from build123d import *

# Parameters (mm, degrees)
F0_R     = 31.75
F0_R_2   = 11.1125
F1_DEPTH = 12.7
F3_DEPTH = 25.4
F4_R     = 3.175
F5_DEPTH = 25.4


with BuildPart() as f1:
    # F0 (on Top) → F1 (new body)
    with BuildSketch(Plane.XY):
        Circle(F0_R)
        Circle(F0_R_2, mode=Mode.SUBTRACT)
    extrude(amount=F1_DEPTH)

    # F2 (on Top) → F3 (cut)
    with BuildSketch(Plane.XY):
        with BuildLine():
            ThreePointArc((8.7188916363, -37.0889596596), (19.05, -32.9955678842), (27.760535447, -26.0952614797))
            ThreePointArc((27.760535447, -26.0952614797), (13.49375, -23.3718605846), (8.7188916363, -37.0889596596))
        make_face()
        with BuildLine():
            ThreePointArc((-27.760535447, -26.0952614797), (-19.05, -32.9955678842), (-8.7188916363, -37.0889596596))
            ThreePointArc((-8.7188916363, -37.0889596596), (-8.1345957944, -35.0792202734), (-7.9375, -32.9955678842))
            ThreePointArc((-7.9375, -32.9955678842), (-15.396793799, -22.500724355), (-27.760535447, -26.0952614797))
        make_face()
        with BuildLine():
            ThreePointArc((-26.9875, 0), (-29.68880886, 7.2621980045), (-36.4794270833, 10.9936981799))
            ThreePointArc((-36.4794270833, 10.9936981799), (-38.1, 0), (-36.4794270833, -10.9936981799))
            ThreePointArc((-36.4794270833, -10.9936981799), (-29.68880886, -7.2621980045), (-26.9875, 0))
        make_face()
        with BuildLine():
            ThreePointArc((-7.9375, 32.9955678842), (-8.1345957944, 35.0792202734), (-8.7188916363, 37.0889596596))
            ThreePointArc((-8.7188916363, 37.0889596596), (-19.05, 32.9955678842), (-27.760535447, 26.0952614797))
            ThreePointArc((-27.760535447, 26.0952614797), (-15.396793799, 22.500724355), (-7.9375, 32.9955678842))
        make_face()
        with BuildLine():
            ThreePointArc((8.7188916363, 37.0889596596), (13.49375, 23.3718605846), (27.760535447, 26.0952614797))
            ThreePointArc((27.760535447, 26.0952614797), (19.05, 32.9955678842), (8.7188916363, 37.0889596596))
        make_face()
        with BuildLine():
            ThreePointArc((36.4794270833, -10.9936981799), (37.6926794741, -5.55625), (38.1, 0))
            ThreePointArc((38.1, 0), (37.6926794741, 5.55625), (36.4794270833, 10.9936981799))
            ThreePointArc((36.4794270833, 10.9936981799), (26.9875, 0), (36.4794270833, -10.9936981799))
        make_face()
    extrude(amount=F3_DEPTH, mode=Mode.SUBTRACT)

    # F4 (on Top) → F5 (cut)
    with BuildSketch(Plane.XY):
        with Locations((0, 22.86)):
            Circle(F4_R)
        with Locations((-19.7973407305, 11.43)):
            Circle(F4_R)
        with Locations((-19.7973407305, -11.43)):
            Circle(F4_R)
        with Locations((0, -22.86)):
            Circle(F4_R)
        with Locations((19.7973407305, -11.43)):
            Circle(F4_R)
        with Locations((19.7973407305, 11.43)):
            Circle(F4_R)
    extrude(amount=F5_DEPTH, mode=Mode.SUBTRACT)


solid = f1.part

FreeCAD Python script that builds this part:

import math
import FreeCAD as App
import Part
import Sketcher
from FreeCAD import Vector
Q = App.Units.Quantity

doc = App.newDocument("Part")
body = doc.addObject("PartDesign::Body", "Body")

sketch1 = body.newObject("Sketcher::SketchObject", "Sketch")
sketch1.AttachmentSupport = (doc.getObject("XY_Plane"), [""])
sketch1.MapMode = "FlatFace"
sketch1.addGeometry([
    Part.Circle(Vector(0, 0, 0), Vector(0, 0, 1), 32),
    Part.Circle(Vector(0, 0, 0), Vector(0, 0, 1), 11),
], False)
sketch1.addConstraint([
    Sketcher.Constraint("Coincident", 0, 3, -1, 1),
    Sketcher.Constraint("Coincident", 1, 3, -1, 1),
    Sketcher.Constraint("Diameter", 0, Q("2.5 in")),
    Sketcher.Constraint("Diameter", 1, Q("0.875 in")),
])
pad1 = body.newObject("PartDesign::Pad", "Pad")
pad1.Profile = sketch1
pad1.Length = Q("0.5 in")

sketch2 = body.newObject("Sketcher::SketchObject", "Sketch001")
sketch2.AttachmentSupport = (doc.getObject("XY_Plane"), [""])
sketch2.MapMode = "FlatFace"
sketch2.addGeometry([
    Part.ArcOfCircle(Part.Circle(Vector(0, 0, 0), Vector(0, 0, 1), 38.1), math.radians(-77), math.radians(-43)),
    Part.ArcOfCircle(Part.Circle(Vector(19.1, -33, 0), Vector(0, 0, 1), 11.1), math.radians(38), math.radians(202)),
    Part.ArcOfCircle(Part.Circle(Vector(0, 0, 0), Vector(0, 0, 1), 38.1), math.radians(-137), math.radians(-103)),
    Part.ArcOfCircle(Part.Circle(Vector(-19, -33, 0), Vector(0, 0, 1), 11.1), math.radians(-22), math.radians(0)),
    Part.ArcOfCircle(Part.Circle(Vector(-19.1, -33, 0), Vector(0, 0, 1), 11.1), math.radians(0), math.radians(142)),
    Part.ArcOfCircle(Part.Circle(Vector(-38.1, 0, 0), Vector(0, 0, 1), 11.1), math.radians(0), math.radians(82)),
    Part.ArcOfCircle(Part.Circle(Vector(0, 0, 0), Vector(0, 0, 1), 38.1), math.radians(163), math.radians(197)),
    Part.ArcOfCircle(Part.Circle(Vector(-38.1, 0, 0), Vector(0, 0, 1), 11.1), math.radians(-82), math.radians(0)),
    Part.ArcOfCircle(Part.Circle(Vector(-19, 33, 0), Vector(0, 0, 1), 11.1), math.radians(0), math.radians(22)),
    Part.ArcOfCircle(Part.Circle(Vector(0, 0, 0), Vector(0, 0, 1), 38.1), math.radians(103), math.radians(137)),
    Part.ArcOfCircle(Part.Circle(Vector(-19.1, 33, 0), Vector(0, 0, 1), 11.1), math.radians(-142), math.radians(0)),
    Part.ArcOfCircle(Part.Circle(Vector(19.1, 33, 0), Vector(0, 0, 1), 11.1), math.radians(158), math.radians(322)),
    Part.ArcOfCircle(Part.Circle(Vector(0, 0, 0), Vector(0, 0, 1), 38.1), math.radians(43), math.radians(77)),
    Part.ArcOfCircle(Part.Circle(Vector(0, 0, 0), Vector(0, 0, 1), 38.1), math.radians(-16.77), math.radians(0)),
    Part.ArcOfCircle(Part.Circle(Vector(0, 0, 0), Vector(0, 0, 1), 38.1), math.radians(0), math.radians(16.77)),
    Part.ArcOfCircle(Part.Circle(Vector(38.1, 0, 0), Vector(0, 0, 1), 11.1), math.radians(98), math.radians(262)),
], False)
sketch2.addConstraint([
    Sketcher.Constraint("Coincident", 0, 1, 1, 2),
    Sketcher.Constraint("Coincident", 1, 1, 0, 2),
    Sketcher.Constraint("Coincident", 2, 2, 3, 1),
    Sketcher.Constraint("Tangent", 3, 2, 4, 1),
    Sketcher.Constraint("Coincident", 4, 2, 2, 1),
    Sketcher.Constraint("Coincident", 5, 2, 6, 1),
    Sketcher.Constraint("Coincident", 6, 2, 7, 1),
    Sketcher.Constraint("Tangent", 7, 2, 5, 1),
    Sketcher.Constraint("Coincident", 8, 2, 9, 1),
    Sketcher.Constraint("Coincident", 9, 2, 10, 1),
    Sketcher.Constraint("Tangent", 10, 2, 8, 1),
    Sketcher.Constraint("Coincident", 11, 1, 12, 2),
    Sketcher.Constraint("Coincident", 12, 1, 11, 2),
    Sketcher.Constraint("Tangent", 13, 2, 14, 1),
    Sketcher.Constraint("Coincident", 14, 2, 15, 1),
    Sketcher.Constraint("Coincident", 15, 2, 13, 1),
    Sketcher.Constraint("Coincident", 0, 3, -1, 1),
    Sketcher.Constraint("Coincident", 2, 3, -1, 1),
    Sketcher.Constraint("Coincident", 6, 3, -1, 1),
    Sketcher.Constraint("Coincident", 9, 3, -1, 1),
    Sketcher.Constraint("Coincident", 12, 3, -1, 1),
    Sketcher.Constraint("Coincident", 13, 3, -1, 1),
    Sketcher.Constraint("Coincident", 13, 2, 15, 3),
    Sketcher.Constraint("Equal", 0, 2),
    Sketcher.Constraint("Equal", 1, 3),
    Sketcher.Constraint("Equal", 3, 4),
    Sketcher.Constraint("Equal", 4, 5),
    Sketcher.Constraint("Equal", 2, 6),
    Sketcher.Constraint("Equal", 5, 7),
    Sketcher.Constraint("Equal", 7, 8),
    Sketcher.Constraint("Equal", 6, 9),
    Sketcher.Constraint("Equal", 8, 10),
    Sketcher.Constraint("Equal", 10, 11),
    Sketcher.Constraint("Equal", 9, 12),
    Sketcher.Constraint("Equal", 12, 13),
    Sketcher.Constraint("Equal", 13, 14),
    Sketcher.Constraint("Equal", 11, 15),
    Sketcher.Constraint("Symmetric", 1, 3, 8, 3, -1, 1),
    Sketcher.Constraint("Symmetric", 3, 3, 11, 3, -1, 1),
    Sketcher.Constraint("Symmetric", 5, 3, 15, 3, -1, 1),
    Sketcher.Constraint("Symmetric", 1, 3, 3, 3, -2),
    Sketcher.Constraint("PointOnObject", 5, 3, -1),
    Sketcher.Constraint("PointOnObject", 7, 2, -1),
    Sketcher.Constraint("Horizontal", 4, 3, 3, 2),
    Sketcher.Constraint("Horizontal", 11, 3, 10, 2),
    Sketcher.Constraint("Radius", 0, Q("1.5 in")),
    Sketcher.Constraint("Radius", 1, Q("0.4375 in")),
    Sketcher.Constraint("DistanceX", 3, 3, 1, 3, Q("1.5 in")),
    Sketcher.Constraint("DistanceY", 0, 1, 1, 1, 10.993698),
])
pocket1 = body.newObject("PartDesign::Pocket", "Pocket")
pocket1.Profile = sketch2
pocket1.Length = Q("1 in")
pocket1.Reversed = True

sketch3 = body.newObject("Sketcher::SketchObject", "Sketch002")
sketch3.AttachmentSupport = (doc.getObject("XY_Plane"), [""])
sketch3.MapMode = "FlatFace"
sketch3.addGeometry([
    Part.Circle(Vector(0, 22.9, 0), Vector(0, 0, 1), 3.2),
    Part.Circle(Vector(-19.8, 11.4, 0), Vector(0, 0, 1), 3.2),
    Part.Circle(Vector(-19.8, -11.4, 0), Vector(0, 0, 1), 3.2),
    Part.Circle(Vector(0, -22.9, 0), Vector(0, 0, 1), 3.2),
    Part.Circle(Vector(19.8, -11.4, 0), Vector(0, 0, 1), 3.2),
    Part.Circle(Vector(19.8, 11.4, 0), Vector(0, 0, 1), 3.2),
], False)
sketch3.addConstraint([
    Sketcher.Constraint("Equal", 0, 1),
    Sketcher.Constraint("Equal", 1, 2),
    Sketcher.Constraint("Equal", 2, 3),
    Sketcher.Constraint("Equal", 3, 4),
    Sketcher.Constraint("Equal", 4, 5),
    Sketcher.Constraint("Symmetric", 0, 3, 3, 3, -1, 1),
    Sketcher.Constraint("Symmetric", 1, 3, 4, 3, -1, 1),
    Sketcher.Constraint("Symmetric", 2, 3, 5, 3, -1, 1),
    Sketcher.Constraint("Symmetric", 2, 3, 4, 3, -2),
    Sketcher.Constraint("PointOnObject", 0, 3, -2),
    Sketcher.Constraint("Diameter", 0, Q("0.25 in")),
    Sketcher.Constraint("DistanceY", -1, 1, 0, 3, Q("0.9 in")),
    Sketcher.Constraint("DistanceY", 2, 3, 1, 3, Q("0.9 in")),
    Sketcher.Constraint("DistanceX", 1, 3, -1, 1, 19.797341),
])
pocket2 = body.newObject("PartDesign::Pocket", "Pocket001")
pocket2.Profile = sketch3
pocket2.Length = Q("1 in")
pocket2.Reversed = True

doc.recompute()
